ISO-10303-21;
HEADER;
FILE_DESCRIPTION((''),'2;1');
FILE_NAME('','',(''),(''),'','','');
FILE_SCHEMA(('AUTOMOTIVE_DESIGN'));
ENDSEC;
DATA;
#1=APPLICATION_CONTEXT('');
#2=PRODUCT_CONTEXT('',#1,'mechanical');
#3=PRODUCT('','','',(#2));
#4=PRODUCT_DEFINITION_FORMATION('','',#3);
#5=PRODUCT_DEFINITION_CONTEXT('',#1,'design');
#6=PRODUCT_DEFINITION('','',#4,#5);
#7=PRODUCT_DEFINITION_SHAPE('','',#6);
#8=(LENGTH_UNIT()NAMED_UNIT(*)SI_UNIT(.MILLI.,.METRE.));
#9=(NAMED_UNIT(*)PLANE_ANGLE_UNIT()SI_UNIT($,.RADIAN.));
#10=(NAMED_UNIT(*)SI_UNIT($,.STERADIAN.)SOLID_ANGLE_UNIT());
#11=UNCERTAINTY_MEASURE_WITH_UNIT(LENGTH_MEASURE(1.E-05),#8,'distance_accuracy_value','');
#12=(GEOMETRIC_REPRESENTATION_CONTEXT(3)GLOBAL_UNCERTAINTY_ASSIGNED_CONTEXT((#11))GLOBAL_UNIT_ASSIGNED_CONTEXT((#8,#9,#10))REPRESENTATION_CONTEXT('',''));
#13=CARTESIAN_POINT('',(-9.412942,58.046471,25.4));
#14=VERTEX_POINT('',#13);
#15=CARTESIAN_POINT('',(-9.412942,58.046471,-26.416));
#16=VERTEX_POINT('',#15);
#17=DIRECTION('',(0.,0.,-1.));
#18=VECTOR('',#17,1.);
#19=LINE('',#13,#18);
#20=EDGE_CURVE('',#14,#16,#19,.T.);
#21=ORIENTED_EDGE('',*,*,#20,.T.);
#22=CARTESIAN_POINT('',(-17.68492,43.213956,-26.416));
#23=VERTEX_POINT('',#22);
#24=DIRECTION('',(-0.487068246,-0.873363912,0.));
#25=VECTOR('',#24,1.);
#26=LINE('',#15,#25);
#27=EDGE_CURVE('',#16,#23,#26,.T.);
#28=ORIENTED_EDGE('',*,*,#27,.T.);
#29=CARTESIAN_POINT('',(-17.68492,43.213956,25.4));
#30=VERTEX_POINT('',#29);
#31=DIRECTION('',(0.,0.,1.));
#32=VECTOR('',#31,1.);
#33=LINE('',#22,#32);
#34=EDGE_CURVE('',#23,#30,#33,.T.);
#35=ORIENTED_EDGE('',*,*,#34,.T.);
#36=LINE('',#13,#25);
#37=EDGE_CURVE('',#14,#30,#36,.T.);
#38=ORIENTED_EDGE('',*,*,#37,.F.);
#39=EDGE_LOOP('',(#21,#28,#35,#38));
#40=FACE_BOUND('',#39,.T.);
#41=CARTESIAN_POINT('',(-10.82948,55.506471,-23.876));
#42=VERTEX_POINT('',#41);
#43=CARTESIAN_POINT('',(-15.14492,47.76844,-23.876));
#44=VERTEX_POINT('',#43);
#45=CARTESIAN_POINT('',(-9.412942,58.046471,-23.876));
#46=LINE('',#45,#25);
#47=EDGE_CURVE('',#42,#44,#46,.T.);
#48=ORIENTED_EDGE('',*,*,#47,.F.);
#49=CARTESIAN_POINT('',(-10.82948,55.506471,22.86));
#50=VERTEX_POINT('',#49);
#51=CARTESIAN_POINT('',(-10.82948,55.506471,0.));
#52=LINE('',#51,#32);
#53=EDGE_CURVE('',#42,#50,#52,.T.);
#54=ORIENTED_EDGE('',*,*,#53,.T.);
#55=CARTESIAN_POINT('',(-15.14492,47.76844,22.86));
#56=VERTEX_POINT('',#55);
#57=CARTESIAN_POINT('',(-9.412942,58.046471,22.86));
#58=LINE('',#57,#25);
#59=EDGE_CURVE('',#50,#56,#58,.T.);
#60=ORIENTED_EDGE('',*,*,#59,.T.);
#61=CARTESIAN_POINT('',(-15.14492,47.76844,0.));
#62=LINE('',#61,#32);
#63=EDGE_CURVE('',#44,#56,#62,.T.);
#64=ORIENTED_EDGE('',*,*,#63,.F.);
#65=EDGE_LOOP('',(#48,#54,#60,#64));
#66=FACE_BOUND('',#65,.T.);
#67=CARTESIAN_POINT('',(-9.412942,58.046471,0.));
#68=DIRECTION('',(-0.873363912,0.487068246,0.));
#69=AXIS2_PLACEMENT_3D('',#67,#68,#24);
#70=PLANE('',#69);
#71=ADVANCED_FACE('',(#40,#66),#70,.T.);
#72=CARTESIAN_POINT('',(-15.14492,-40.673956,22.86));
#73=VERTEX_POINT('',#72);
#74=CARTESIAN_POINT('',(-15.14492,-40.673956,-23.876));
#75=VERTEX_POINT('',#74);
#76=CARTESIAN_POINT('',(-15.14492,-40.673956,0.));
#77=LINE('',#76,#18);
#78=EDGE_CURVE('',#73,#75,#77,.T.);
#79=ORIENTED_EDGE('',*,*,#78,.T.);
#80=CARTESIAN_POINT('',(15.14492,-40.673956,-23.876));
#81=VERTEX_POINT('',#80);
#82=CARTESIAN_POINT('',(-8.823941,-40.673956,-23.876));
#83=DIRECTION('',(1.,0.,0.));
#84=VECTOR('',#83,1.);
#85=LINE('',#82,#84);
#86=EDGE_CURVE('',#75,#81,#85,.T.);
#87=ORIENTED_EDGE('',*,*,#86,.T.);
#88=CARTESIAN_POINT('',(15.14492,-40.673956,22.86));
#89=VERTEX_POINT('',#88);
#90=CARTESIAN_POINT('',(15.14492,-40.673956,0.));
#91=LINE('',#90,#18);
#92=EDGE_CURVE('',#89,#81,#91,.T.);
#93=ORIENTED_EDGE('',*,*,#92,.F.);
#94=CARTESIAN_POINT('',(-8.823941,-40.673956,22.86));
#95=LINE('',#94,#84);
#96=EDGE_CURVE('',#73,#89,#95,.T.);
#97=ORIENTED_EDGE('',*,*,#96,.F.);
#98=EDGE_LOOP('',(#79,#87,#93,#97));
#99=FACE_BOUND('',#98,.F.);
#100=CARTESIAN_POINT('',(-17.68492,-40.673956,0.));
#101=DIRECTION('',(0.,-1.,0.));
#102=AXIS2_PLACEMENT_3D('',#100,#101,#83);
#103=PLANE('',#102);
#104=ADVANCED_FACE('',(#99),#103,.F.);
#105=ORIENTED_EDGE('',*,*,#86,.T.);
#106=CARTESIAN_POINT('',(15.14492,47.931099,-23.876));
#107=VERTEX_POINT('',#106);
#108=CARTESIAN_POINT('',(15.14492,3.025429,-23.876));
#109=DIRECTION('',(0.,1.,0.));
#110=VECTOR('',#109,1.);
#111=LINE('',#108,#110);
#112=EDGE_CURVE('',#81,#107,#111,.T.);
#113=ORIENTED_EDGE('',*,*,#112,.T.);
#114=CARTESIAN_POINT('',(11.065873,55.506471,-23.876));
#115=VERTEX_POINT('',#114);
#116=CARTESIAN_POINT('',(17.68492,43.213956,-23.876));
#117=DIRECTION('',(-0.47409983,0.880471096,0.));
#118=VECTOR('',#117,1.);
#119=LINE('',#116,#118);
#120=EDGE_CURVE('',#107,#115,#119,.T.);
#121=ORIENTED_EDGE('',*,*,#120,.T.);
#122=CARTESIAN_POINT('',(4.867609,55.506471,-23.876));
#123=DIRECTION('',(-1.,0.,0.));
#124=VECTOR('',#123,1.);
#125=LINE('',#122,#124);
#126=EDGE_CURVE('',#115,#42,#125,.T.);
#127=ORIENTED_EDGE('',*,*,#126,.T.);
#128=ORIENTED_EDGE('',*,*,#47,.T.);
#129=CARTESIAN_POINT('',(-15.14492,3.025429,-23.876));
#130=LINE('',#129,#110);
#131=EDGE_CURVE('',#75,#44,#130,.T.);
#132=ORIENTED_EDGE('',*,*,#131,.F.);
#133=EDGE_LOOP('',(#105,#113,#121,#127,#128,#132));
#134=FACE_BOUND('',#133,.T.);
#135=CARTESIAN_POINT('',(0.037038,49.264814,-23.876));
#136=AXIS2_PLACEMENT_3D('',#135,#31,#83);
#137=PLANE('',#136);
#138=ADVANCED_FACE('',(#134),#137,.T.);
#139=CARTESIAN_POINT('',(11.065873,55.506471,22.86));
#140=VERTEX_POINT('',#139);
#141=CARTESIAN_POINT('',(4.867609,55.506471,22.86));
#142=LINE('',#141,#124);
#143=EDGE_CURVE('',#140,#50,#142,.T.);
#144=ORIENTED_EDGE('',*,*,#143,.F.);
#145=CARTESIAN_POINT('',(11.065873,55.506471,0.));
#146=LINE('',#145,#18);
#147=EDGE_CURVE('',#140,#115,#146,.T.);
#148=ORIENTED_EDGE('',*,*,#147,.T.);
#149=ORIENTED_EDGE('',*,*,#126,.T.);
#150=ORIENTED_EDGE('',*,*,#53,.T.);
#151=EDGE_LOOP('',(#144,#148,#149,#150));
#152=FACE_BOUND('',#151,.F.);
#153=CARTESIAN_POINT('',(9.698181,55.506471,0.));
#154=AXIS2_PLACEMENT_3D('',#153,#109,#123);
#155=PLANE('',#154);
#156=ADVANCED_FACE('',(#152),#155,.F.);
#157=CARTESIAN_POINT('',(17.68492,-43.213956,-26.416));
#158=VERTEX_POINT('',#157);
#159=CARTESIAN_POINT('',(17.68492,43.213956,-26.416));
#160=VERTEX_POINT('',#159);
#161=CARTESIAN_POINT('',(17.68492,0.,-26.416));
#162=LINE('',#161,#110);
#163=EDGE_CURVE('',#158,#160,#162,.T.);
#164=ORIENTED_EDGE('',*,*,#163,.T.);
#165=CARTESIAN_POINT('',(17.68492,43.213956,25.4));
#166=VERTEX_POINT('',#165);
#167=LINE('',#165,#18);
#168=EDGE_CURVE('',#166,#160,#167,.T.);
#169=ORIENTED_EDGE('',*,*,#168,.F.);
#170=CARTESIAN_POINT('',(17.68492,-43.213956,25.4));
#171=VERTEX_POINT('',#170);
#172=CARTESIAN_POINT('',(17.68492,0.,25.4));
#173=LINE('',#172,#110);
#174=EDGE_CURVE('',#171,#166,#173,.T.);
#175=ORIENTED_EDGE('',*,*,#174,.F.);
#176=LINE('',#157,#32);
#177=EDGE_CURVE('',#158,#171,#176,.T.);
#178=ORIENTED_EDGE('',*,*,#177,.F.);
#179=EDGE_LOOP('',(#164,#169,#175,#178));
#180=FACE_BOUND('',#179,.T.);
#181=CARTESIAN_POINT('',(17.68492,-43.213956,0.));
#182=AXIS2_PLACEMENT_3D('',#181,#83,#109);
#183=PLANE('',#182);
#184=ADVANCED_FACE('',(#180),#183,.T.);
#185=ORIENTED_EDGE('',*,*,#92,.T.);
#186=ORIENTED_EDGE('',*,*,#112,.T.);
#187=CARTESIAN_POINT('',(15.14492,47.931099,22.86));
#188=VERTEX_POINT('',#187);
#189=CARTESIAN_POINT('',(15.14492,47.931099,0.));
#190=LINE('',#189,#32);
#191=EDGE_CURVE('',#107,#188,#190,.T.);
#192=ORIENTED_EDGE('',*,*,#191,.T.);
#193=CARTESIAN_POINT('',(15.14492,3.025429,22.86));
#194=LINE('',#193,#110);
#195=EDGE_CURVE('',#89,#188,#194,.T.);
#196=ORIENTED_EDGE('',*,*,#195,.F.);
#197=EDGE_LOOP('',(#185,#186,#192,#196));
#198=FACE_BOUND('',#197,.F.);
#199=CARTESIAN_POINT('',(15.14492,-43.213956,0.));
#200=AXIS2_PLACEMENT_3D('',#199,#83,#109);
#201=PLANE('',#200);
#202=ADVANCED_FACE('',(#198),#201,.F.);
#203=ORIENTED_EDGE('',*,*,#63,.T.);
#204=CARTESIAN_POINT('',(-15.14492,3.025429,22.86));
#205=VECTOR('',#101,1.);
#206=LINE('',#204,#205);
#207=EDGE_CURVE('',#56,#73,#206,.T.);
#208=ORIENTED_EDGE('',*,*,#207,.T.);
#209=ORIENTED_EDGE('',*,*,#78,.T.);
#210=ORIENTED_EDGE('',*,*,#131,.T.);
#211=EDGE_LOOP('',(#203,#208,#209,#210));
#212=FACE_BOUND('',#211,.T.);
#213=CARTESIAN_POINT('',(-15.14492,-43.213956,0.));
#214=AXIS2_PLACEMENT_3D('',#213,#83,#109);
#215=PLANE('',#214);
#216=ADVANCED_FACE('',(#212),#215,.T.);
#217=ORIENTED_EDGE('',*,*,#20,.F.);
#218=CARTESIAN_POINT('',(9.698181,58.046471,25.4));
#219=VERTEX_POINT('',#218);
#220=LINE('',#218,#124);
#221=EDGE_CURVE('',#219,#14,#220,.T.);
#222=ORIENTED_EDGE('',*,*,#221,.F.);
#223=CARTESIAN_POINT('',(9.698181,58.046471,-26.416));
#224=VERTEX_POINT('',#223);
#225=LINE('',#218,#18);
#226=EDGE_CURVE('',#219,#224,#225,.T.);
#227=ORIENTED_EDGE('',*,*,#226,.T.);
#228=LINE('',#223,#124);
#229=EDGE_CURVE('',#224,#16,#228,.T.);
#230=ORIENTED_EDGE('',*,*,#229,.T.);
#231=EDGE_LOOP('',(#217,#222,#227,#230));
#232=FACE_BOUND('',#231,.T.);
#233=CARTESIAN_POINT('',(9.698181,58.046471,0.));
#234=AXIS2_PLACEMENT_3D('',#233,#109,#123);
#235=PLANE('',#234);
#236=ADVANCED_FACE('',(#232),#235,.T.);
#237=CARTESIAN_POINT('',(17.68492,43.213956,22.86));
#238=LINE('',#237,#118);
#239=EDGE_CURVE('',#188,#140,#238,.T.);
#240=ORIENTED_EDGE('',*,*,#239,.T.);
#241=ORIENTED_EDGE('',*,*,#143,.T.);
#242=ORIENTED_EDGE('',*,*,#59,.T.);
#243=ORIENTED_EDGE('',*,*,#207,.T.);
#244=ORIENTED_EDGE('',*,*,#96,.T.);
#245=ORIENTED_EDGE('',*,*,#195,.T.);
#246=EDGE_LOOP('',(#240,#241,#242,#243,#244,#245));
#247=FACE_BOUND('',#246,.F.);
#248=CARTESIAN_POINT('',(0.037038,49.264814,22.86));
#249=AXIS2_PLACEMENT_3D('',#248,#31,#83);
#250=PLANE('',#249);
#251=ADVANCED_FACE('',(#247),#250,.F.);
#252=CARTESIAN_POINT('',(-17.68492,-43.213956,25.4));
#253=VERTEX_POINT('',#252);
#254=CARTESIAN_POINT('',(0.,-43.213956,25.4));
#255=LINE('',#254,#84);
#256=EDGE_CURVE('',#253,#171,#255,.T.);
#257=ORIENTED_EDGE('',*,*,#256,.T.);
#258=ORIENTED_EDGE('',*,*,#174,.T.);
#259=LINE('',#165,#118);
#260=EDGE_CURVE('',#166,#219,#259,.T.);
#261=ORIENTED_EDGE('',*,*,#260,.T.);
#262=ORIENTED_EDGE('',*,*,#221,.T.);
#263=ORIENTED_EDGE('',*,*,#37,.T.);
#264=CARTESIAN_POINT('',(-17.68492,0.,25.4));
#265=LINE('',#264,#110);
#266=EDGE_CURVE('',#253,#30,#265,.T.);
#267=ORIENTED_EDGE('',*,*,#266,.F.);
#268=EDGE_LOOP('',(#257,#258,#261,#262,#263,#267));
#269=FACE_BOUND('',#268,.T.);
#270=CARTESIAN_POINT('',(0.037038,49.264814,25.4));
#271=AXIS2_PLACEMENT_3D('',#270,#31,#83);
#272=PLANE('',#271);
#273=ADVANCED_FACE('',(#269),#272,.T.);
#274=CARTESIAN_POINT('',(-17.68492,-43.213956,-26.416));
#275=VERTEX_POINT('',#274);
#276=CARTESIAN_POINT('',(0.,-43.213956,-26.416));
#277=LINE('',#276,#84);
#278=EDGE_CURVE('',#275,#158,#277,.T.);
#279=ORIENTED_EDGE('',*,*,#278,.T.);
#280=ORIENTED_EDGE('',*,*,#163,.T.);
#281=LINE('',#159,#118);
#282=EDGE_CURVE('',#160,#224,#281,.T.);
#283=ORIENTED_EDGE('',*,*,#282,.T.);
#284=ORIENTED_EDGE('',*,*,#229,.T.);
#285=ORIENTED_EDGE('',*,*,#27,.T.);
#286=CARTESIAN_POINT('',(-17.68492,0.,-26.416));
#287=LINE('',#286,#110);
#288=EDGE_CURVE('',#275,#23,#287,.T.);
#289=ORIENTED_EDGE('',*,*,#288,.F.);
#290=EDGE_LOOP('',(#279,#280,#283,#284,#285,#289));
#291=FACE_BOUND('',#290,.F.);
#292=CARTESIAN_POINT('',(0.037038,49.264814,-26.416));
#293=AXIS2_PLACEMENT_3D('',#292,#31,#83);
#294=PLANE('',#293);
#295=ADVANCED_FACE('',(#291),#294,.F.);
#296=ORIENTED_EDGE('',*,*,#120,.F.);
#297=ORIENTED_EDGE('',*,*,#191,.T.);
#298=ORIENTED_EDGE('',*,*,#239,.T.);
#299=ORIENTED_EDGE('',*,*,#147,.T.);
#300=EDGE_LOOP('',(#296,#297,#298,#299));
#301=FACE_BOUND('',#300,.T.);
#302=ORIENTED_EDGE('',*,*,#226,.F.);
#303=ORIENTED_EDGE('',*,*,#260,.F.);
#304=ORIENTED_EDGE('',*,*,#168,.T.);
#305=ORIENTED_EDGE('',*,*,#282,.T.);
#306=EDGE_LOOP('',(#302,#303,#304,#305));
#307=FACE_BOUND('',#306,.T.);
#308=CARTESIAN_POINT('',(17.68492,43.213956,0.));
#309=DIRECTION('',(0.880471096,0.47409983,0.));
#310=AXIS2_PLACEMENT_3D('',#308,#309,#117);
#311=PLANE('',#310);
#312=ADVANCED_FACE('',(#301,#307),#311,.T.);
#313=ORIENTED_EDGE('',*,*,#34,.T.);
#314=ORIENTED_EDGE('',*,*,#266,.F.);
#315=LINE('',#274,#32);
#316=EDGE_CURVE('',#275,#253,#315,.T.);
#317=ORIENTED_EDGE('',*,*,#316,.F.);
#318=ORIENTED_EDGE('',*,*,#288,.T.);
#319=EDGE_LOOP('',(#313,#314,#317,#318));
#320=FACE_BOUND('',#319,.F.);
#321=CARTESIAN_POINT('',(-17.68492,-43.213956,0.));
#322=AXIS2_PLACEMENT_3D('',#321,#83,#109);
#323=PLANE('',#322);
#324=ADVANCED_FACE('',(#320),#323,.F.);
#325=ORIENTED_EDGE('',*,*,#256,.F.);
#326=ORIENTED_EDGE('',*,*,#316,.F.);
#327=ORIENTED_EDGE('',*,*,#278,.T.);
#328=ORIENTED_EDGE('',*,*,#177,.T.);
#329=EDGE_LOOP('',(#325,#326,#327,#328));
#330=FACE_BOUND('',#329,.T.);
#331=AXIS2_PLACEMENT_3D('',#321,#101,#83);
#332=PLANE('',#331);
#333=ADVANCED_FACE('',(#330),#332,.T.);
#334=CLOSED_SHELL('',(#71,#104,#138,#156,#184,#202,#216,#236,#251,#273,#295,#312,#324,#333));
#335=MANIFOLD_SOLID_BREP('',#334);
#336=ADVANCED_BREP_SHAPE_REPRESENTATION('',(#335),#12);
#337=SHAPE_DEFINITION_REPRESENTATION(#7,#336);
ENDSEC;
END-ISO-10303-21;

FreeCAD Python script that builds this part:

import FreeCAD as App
import Part
import Sketcher

V = App.Vector
Q = App.Units.Quantity


def faces_at(feature, points):
    """Names of the faces that lie closest to the given points."""
    faces = feature.Shape.Faces
    near = lambda p: min(range(len(faces)), key=lambda i: faces[i].distToShape(Part.Vertex(*p))[0])
    return sorted({f"Face{near(p) + 1}" for p in points})

doc = App.newDocument("Part")
body = doc.addObject("PartDesign::Body", "Body")

# Sketch on XY plane
sketch1 = doc.addObject("Sketcher::SketchObject", "Sketch")
body.addObject(sketch1)
sketch1.AttachmentSupport = (doc.XY_Plane, [""])
sketch1.MapMode = "FlatFace"
sketch1.addGeometry(Part.LineSegment(V(-9, 58, 0), V(-18, 43, 0)), False)
sketch1.addGeometry(Part.LineSegment(V(-18, 43, 0), V(-18, -43, 0)), False)
sketch1.addGeometry(Part.LineSegment(V(-18, -43, 0), V(18, -43, 0)), False)
sketch1.addGeometry(Part.LineSegment(V(18, -43, 0), V(18, 43, 0)), False)
sketch1.addGeometry(Part.LineSegment(V(18, 43, 0), V(10, 58, 0)), False)
sketch1.addGeometry(Part.LineSegment(V(10, 58, 0), V(-9, 58, 0)), False)
sketch1.addConstraint(Sketcher.Constraint("Coincident", 0, 2, 1, 1))
sketch1.addConstraint(Sketcher.Constraint("Coincident", 1, 2, 2, 1))
sketch1.addConstraint(Sketcher.Constraint("Coincident", 2, 2, 3, 1))
sketch1.addConstraint(Sketcher.Constraint("Coincident", 3, 2, 4, 1))
sketch1.addConstraint(Sketcher.Constraint("Coincident", 4, 2, 5, 1))
sketch1.addConstraint(Sketcher.Constraint("Coincident", 5, 2, 0, 1))
sketch1.addConstraint(Sketcher.Constraint("Vertical", 1))
sketch1.addConstraint(Sketcher.Constraint("Horizontal", 2))
sketch1.addConstraint(Sketcher.Constraint("Vertical", 3))
sketch1.addConstraint(Sketcher.Constraint("Horizontal", 5))
sketch1.addConstraint(Sketcher.Constraint("Symmetric", 0, 2, 2, 2, -1, 1))
sketch1.addConstraint(Sketcher.Constraint("Horizontal", 0, 2, 3, 2))
sketch1.addConstraint(Sketcher.Constraint("Distance", 0, Q("16.983201 mm")))
sketch1.addConstraint(Sketcher.Constraint("DistanceX", 2, 1, 2, 2, Q("35.36984 mm")))
sketch1.addConstraint(Sketcher.Constraint("DistanceX", 0, 2, 4, 2, Q("27.383101 mm")))
sketch1.addConstraint(Sketcher.Constraint("DistanceX", 5, 2, 5, 1, Q("19.111123 mm")))
sketch1.addConstraint(Sketcher.Constraint("DistanceY", 1, 2, 1, 1, Q("86.427912 mm")))
pad1 = doc.addObject("PartDesign::Pad", "Pad")
body.addObject(pad1)
pad1.Profile = sketch1
pad1.Type = "TwoLengths"
pad1.Length = Q("1 in")
pad1.Length2 = Q("1.04 in")
doc.recompute()

thickness = doc.addObject("PartDesign::Thickness", "Thickness")
body.addObject(thickness)
thickness.Base = (pad1, faces_at(pad1, [(-13.549, 50.63, -0.508), (13.692, 50.63, -0.508)]))
thickness.Value = Q("0.1 in")
thickness.Reversed = True
thickness.Join = "Arc"

doc.recompute()
